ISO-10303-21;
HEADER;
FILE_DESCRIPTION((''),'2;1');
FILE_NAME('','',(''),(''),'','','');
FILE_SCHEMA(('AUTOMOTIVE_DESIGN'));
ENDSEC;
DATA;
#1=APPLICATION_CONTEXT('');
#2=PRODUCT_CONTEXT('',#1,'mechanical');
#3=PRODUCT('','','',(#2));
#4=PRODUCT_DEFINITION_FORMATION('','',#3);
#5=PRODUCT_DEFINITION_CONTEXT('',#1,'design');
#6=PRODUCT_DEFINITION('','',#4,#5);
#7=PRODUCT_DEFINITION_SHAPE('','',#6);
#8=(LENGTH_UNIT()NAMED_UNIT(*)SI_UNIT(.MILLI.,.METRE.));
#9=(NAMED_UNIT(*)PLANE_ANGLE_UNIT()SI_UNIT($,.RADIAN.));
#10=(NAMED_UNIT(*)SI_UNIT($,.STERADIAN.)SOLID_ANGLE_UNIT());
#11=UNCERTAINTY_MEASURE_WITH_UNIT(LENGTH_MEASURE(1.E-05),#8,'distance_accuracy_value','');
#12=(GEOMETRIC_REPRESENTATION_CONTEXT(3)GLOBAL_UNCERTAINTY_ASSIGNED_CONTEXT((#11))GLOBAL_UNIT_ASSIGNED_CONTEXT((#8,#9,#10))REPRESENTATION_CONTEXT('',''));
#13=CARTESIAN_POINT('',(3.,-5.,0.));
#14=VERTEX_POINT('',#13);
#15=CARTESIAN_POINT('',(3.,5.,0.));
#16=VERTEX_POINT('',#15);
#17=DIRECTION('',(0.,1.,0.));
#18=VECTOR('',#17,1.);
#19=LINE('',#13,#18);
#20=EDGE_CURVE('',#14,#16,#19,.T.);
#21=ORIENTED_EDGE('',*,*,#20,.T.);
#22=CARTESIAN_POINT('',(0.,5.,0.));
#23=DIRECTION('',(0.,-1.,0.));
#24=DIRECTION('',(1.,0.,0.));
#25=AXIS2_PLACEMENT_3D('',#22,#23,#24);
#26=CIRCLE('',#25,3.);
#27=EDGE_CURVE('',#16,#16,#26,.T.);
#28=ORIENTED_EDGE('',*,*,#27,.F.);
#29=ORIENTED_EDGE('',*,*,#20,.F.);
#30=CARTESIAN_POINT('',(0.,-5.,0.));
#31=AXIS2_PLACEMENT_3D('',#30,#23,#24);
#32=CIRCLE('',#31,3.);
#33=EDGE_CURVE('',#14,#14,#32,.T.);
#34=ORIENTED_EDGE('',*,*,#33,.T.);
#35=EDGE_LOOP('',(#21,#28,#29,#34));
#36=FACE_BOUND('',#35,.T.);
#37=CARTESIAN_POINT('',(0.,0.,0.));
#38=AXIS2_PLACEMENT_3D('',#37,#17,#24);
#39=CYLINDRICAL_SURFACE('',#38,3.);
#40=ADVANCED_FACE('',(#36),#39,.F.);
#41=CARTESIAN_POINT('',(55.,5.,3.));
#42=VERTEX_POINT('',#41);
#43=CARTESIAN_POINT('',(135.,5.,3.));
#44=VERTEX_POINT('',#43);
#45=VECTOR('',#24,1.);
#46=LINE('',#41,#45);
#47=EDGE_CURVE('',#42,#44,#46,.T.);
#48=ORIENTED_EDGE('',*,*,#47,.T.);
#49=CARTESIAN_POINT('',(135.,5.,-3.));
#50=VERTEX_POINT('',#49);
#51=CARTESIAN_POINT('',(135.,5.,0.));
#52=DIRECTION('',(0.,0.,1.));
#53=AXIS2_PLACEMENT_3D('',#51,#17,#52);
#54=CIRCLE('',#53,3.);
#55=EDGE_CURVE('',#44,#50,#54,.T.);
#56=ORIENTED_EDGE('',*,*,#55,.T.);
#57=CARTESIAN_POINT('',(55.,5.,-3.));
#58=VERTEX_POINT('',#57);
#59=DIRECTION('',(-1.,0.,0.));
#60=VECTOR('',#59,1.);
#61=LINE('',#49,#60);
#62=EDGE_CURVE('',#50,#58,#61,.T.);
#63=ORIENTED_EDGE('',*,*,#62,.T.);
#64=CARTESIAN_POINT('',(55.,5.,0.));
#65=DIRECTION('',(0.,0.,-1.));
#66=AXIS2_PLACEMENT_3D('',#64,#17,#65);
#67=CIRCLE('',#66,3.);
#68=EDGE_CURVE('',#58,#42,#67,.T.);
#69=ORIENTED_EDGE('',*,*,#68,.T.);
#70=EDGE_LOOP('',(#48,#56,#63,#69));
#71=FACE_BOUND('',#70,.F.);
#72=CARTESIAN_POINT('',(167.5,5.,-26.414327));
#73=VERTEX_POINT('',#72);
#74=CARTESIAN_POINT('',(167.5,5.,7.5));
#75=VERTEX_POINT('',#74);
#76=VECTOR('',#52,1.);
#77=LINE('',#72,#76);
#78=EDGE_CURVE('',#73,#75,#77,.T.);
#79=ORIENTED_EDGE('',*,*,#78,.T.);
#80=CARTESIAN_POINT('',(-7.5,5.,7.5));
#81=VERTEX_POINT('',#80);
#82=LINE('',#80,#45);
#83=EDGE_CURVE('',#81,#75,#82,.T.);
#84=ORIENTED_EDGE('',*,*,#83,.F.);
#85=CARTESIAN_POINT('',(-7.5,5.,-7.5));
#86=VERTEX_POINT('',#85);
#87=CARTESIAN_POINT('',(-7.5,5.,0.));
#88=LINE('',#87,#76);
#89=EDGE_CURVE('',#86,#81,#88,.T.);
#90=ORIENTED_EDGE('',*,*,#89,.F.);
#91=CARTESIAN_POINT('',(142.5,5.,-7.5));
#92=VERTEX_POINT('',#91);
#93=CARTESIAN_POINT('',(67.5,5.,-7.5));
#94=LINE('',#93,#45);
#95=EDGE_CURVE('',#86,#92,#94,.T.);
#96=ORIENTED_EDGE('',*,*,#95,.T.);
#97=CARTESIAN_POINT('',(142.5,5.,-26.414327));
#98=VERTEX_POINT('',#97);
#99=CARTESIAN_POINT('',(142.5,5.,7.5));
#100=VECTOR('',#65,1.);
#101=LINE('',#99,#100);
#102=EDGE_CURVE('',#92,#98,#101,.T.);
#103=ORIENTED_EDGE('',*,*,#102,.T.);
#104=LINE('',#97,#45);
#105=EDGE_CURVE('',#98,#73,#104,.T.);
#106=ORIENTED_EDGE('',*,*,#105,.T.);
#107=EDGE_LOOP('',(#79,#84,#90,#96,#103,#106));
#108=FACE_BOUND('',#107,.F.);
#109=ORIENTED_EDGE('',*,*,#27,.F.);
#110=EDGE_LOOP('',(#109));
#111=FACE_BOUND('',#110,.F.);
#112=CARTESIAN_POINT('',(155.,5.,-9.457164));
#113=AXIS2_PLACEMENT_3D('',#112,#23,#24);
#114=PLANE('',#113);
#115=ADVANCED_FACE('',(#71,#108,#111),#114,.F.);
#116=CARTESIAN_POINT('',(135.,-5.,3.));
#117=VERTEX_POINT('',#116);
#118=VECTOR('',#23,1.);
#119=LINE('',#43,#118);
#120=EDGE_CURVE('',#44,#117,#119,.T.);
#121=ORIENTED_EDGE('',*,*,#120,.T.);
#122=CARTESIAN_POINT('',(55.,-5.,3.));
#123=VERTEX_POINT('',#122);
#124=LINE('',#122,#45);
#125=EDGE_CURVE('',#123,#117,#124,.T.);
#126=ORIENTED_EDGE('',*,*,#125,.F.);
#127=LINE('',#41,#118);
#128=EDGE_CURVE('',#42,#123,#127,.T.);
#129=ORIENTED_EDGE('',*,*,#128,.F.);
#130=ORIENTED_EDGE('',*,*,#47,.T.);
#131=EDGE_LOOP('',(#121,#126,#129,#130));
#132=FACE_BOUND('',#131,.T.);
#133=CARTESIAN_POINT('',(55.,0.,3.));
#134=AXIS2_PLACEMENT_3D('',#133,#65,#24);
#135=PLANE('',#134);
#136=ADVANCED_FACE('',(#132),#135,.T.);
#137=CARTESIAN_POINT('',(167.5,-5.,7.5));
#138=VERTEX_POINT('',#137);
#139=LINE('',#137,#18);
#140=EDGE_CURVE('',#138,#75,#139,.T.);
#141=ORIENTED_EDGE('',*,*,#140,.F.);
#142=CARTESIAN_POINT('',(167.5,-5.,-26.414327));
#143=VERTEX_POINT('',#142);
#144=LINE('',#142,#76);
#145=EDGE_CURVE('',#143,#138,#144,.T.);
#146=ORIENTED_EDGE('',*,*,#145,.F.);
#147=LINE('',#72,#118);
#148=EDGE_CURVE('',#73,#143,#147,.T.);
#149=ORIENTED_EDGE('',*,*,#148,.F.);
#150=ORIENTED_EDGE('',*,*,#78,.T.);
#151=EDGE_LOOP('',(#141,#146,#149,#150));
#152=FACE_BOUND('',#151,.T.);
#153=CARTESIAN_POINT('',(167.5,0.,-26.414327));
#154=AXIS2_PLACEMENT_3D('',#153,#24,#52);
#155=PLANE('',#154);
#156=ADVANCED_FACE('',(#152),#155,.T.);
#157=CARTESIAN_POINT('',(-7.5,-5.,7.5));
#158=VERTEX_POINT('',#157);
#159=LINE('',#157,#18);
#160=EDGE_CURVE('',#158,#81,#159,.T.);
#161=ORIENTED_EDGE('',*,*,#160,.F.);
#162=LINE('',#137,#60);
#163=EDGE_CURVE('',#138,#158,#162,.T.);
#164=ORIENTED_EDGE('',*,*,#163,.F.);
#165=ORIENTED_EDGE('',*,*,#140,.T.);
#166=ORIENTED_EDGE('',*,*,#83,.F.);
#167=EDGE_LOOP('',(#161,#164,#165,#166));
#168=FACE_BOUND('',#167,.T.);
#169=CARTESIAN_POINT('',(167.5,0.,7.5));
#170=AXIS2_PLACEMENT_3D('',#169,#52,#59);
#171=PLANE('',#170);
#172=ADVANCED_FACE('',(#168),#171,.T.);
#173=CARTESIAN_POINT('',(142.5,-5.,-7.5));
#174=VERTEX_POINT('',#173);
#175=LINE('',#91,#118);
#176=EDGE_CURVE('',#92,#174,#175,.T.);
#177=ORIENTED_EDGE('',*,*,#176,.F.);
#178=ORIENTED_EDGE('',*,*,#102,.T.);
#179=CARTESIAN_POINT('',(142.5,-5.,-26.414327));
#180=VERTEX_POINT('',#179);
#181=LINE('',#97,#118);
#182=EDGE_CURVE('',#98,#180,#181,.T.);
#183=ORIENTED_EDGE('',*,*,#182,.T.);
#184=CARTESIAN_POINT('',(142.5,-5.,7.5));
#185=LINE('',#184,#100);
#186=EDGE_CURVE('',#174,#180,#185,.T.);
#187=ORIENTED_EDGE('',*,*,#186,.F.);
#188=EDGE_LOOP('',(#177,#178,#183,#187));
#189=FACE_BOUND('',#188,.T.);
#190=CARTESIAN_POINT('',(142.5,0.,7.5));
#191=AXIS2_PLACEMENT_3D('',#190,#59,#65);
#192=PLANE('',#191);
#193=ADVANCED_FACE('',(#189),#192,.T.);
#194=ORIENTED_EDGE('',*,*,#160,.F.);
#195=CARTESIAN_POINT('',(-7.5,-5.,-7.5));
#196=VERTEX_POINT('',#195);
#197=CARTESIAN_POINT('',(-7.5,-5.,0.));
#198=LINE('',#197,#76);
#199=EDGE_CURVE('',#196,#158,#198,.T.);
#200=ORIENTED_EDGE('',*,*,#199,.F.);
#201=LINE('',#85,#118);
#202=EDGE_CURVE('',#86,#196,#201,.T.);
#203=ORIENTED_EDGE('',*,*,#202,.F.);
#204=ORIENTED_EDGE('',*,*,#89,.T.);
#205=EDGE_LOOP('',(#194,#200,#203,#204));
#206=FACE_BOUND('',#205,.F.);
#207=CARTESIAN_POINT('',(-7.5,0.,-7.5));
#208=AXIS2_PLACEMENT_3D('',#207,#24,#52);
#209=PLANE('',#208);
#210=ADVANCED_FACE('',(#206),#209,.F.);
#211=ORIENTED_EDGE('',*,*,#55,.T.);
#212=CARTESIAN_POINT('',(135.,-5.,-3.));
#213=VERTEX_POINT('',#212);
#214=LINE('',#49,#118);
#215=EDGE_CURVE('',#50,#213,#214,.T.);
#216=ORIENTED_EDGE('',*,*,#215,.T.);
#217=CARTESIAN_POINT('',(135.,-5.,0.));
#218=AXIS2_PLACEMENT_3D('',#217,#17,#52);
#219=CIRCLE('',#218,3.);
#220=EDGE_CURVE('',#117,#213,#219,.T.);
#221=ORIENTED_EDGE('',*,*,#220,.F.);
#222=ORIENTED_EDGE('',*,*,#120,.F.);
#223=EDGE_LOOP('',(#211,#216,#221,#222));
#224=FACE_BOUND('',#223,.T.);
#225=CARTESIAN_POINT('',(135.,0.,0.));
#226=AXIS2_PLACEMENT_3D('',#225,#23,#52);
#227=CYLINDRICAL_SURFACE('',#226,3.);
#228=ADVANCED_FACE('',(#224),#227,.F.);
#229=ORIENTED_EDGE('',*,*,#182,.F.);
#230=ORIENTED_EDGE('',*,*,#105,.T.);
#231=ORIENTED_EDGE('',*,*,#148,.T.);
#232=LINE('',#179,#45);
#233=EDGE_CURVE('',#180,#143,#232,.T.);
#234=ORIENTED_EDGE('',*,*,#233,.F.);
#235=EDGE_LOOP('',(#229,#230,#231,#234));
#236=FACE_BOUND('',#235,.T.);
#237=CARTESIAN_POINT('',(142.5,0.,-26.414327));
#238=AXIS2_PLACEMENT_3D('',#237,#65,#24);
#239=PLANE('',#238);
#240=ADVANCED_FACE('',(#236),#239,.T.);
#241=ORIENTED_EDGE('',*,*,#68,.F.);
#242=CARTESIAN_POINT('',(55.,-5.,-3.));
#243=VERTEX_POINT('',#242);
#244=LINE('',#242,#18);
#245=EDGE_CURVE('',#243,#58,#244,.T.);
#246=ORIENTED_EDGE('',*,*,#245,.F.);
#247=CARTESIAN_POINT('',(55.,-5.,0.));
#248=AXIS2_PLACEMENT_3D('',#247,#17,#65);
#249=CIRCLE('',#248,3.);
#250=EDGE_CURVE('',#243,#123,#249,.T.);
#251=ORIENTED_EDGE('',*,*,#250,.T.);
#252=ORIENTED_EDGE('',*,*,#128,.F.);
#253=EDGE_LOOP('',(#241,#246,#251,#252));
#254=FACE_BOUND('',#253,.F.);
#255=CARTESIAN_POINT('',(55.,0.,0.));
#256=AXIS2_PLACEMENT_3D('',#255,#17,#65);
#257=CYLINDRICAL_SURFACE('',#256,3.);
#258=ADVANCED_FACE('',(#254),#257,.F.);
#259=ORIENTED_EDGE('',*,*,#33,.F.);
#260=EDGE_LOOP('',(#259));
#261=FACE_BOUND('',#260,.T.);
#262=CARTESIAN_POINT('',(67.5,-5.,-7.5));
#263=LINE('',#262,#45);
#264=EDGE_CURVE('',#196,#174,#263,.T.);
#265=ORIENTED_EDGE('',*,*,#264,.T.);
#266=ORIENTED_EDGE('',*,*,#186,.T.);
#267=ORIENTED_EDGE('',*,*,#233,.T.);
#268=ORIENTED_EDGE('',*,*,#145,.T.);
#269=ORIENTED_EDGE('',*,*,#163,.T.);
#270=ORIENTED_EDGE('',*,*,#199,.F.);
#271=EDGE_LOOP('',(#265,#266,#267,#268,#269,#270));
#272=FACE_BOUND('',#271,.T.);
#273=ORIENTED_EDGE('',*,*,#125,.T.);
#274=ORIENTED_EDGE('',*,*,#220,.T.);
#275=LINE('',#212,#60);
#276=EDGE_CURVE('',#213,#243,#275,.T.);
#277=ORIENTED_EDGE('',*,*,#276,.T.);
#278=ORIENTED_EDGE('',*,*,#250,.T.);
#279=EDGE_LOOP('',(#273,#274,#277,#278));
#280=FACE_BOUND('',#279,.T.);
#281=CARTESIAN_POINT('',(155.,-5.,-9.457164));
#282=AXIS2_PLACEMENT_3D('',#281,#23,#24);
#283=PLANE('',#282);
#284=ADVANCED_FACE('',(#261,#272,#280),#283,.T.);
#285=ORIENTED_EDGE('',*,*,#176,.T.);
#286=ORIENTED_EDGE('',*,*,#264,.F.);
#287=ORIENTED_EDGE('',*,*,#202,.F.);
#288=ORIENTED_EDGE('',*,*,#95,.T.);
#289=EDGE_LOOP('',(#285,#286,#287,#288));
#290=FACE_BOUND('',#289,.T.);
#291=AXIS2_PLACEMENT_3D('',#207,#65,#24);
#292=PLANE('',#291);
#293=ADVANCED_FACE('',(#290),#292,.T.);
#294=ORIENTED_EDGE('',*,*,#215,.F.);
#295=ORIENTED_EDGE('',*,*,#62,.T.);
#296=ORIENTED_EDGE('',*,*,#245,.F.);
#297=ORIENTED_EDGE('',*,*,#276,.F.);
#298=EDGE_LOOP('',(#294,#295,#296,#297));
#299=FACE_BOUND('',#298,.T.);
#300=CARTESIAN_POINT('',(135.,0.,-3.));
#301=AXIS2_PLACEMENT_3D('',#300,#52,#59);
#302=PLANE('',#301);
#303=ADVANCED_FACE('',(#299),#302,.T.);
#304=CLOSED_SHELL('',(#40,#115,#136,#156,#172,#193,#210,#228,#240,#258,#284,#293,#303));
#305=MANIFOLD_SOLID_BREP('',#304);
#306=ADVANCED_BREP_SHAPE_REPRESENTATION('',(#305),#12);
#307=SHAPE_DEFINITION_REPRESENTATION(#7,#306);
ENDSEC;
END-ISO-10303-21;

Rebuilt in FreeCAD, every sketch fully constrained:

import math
import FreeCAD as App
import Part
import Sketcher
from FreeCAD import Vector

doc = App.newDocument("Part")
body = doc.addObject("PartDesign::Body", "Body")

sketch1 = doc.addObject("Sketcher::SketchObject", "Sketch")
body.addObject(sketch1)
sketch1.AttachmentSupport = (doc.XZ_Plane, [""])
sketch1.MapMode = "FlatFace"
sketch1.addGeometry(Part.LineSegment(Vector(-7.5, 7.5, 0), Vector(-7.5, -7.5, 0)), False)
sketch1.addGeometry(Part.LineSegment(Vector(-7.5, -7.5, 0), Vector(142.5, -7.5, 0)), False)
sketch1.addGeometry(Part.LineSegment(Vector(142.5, -7.5, 0), Vector(142.5, 7.5, 0)), False)
sketch1.addGeometry(Part.LineSegment(Vector(142.5, 7.5, 0), Vector(-7.5, 7.5, 0)), False)
sketch1.addGeometry(Part.Circle(Vector(0, 0, 0), Vector(0, 0, 1), 3), False)
sketch1.addGeometry(Part.LineSegment(Vector(135, -3, 0), Vector(55, -3, 0)), False)
sketch1.addGeometry(Part.ArcOfCircle(Part.Circle(Vector(55, 0, 0), Vector(0, 0, 1), 3), math.radians(90), math.radians(270)), False)
sketch1.addGeometry(Part.LineSegment(Vector(55, 3, 0), Vector(135, 3, 0)), False)
sketch1.addGeometry(Part.ArcOfCircle(Part.Circle(Vector(135, 0, 0), Vector(0, 0, 1), 3), math.radians(-90), math.radians(90)), False)
sketch1.addConstraint(Sketcher.Constraint("Coincident", 0, 2, 1, 1))
sketch1.addConstraint(Sketcher.Constraint("Coincident", 1, 2, 2, 1))
sketch1.addConstraint(Sketcher.Constraint("Coincident", 2, 2, 3, 1))
sketch1.addConstraint(Sketcher.Constraint("Coincident", 3, 2, 0, 1))
sketch1.addConstraint(Sketcher.Constraint("Tangent", 5, 2, 6, 2))
sketch1.addConstraint(Sketcher.Constraint("Tangent", 6, 1, 7, 1))
sketch1.addConstraint(Sketcher.Constraint("Tangent", 7, 2, 8, 2))
sketch1.addConstraint(Sketcher.Constraint("Tangent", 8, 1, 5, 1))
sketch1.addConstraint(Sketcher.Constraint("Vertical", 0))
sketch1.addConstraint(Sketcher.Constraint("Horizontal", 1))
sketch1.addConstraint(Sketcher.Constraint("Vertical", 2))
sketch1.addConstraint(Sketcher.Constraint("Horizontal", 3))
sketch1.addConstraint(Sketcher.Constraint("Horizontal", 5))
sketch1.addConstraint(Sketcher.Constraint("Horizontal", 7))
sketch1.addConstraint(Sketcher.Constraint("Coincident", 4, 3, -1, 1))
sketch1.addConstraint(Sketcher.Constraint("Equal", 4, 6))
sketch1.addConstraint(Sketcher.Constraint("PointOnObject", 6, 3, -1))
sketch1.addConstraint(Sketcher.Constraint("Diameter", 4, 6.0))
sketch1.addConstraint(Sketcher.Constraint("DistanceX", 1, 1, 1, 2, 150.0))
sketch1.addConstraint(Sketcher.Constraint("DistanceX", 5, 2, 5, 1, 80.0))
sketch1.addConstraint(Sketcher.Constraint("DistanceY", 0, 2, 0, 1, 15.0))
sketch1.addConstraint(Sketcher.Constraint("DistanceX", -1, 1, 6, 3, 55.0))
sketch1.addConstraint(Sketcher.Constraint("DistanceX", 0, 2, -1, 1, 7.5))
sketch1.addConstraint(Sketcher.Constraint("DistanceY", 0, 2, -1, 1, 7.5))
pad1 = doc.addObject("PartDesign::Pad", "Pad")
body.addObject(pad1)
pad1.Profile = sketch1
pad1.Length = 10
pad1.Midplane = True

sketch2 = doc.addObject("Sketcher::SketchObject", "Sketch001")
body.addObject(sketch2)
sketch2.AttachmentSupport = (doc.XZ_Plane, [""])
sketch2.MapMode = "FlatFace"
sketch2.addGeometry(Part.LineSegment(Vector(142, 8, 0), Vector(142, -26, 0)), False)
sketch2.addGeometry(Part.LineSegment(Vector(142, -26, 0), Vector(168, -26, 0)), False)
sketch2.addGeometry(Part.LineSegment(Vector(168, -26, 0), Vector(168, 8, 0)), False)
sketch2.addGeometry(Part.LineSegment(Vector(168, 8, 0), Vector(142, 8, 0)), False)
sketch2.addConstraint(Sketcher.Constraint("Coincident", 0, 2, 1, 1))
sketch2.addConstraint(Sketcher.Constraint("Coincident", 1, 2, 2, 1))
sketch2.addConstraint(Sketcher.Constraint("Coincident", 2, 2, 3, 1))
sketch2.addConstraint(Sketcher.Constraint("Coincident", 3, 2, 0, 1))
sketch2.addConstraint(Sketcher.Constraint("Vertical", 0))
sketch2.addConstraint(Sketcher.Constraint("Horizontal", 1))
sketch2.addConstraint(Sketcher.Constraint("Vertical", 2))
sketch2.addConstraint(Sketcher.Constraint("Horizontal", 3))
sketch2.addConstraint(Sketcher.Constraint("DistanceX", 1, 1, 1, 2, 25.0))
sketch2.addConstraint(Sketcher.Constraint("DistanceX", -1, 1, 0, 2, 142.5))
sketch2.addConstraint(Sketcher.Constraint("DistanceY", -1, 1, 2, 2, 7.5))
sketch2.addConstraint(Sketcher.Constraint("DistanceY", 0, 2, 0, 1, 33.914327))
pad2 = doc.addObject("PartDesign::Pad", "Pad001")
body.addObject(pad2)
pad2.Profile = sketch2
pad2.Length = 10
pad2.Midplane = True

doc.recompute()
